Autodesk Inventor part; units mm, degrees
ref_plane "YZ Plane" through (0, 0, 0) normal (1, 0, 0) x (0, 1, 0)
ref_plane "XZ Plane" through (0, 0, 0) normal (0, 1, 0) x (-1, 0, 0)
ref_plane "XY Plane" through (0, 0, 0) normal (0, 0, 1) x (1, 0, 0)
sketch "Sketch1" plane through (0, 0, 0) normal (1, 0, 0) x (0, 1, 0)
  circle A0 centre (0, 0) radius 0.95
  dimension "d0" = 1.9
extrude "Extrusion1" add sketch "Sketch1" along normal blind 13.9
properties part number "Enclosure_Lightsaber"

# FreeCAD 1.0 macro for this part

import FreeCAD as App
import Part
import Sketcher
from FreeCAD import Vector

doc = App.newDocument("Part")
body = doc.addObject("PartDesign::Body", "Body")

sketch1 = doc.addObject("Sketcher::SketchObject", "Sketch")
body.addObject(sketch1)
sketch1.AttachmentSupport = (doc.YZ_Plane, [""])
sketch1.MapMode = "FlatFace"
sketch1.addGeometry(Part.Circle(Vector(0, 0, 0), Vector(0, 0, 1), 0.9), False)
sketch1.addConstraint([
    Sketcher.Constraint("Coincident", 0, 3, -1, 1),
    Sketcher.Constraint("Diameter", 0, 1.9),
])
pad1 = doc.addObject("PartDesign::Pad", "Pad")
body.addObject(pad1)
pad1.Profile = sketch1
pad1.Length = 13.9

doc.recompute()
